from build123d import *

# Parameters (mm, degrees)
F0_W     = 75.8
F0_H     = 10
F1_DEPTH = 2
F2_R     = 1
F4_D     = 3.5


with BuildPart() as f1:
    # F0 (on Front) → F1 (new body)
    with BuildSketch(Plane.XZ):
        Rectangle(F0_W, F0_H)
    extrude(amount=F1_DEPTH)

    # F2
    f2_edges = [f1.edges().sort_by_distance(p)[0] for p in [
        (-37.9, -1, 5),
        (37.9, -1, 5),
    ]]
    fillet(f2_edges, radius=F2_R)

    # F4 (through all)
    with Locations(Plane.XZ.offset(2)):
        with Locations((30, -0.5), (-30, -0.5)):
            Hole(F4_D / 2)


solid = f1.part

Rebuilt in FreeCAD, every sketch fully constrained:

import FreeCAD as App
import Part
import Sketcher

V = App.Vector


def edges_at(feature, points):
    """Names of the edges that pass closest to the given points."""
    edges = feature.Shape.Edges
    near = lambda p: min(range(len(edges)), key=lambda i: edges[i].distToShape(Part.Vertex(*p))[0])
    return sorted({f"Edge{near(p) + 1}" for p in points})

doc = App.newDocument("Part")
body = doc.addObject("PartDesign::Body", "Body")

# Sketch on XZ plane
sketch1 = body.newObject("Sketcher::SketchObject", "Sketch")
sketch1.AttachmentSupport = (doc.getObject("XZ_Plane"), [""])
sketch1.MapMode = "FlatFace"
sketch1.addGeometry([
    Part.LineSegment(V(-38, 5, 0), V(-38, -5, 0)),
    Part.LineSegment(V(-38, -5, 0), V(38, -5, 0)),
    Part.LineSegment(V(38, -5, 0), V(38, 5, 0)),
    Part.LineSegment(V(38, 5, 0), V(-38, 5, 0)),
], False)
sketch1.addConstraint([
    Sketcher.Constraint("Coincident", 0, 2, 1, 1),
    Sketcher.Constraint("Coincident", 1, 2, 2, 1),
    Sketcher.Constraint("Coincident", 2, 2, 3, 1),
    Sketcher.Constraint("Coincident", 3, 2, 0, 1),
    Sketcher.Constraint("Vertical", 0),
    Sketcher.Constraint("Horizontal", 1),
    Sketcher.Constraint("Vertical", 2),
    Sketcher.Constraint("Horizontal", 3),
    Sketcher.Constraint("Symmetric", 0, 2, 2, 2, -1, 1),
    Sketcher.Constraint("DistanceY", 0, 2, 0, 1, 10.0),
    Sketcher.Constraint("DistanceX", 1, 1, 1, 2, 75.8),
])
pad1 = body.newObject("PartDesign::Pad", "Pad")
pad1.Profile = sketch1
pad1.Length = 2
doc.recompute()

fillet = body.newObject("PartDesign::Fillet", "Fillet")
fillet.Base = (pad1, edges_at(pad1, [(-37.9, -1, 5), (37.9, -1, 5)]))
fillet.Radius = 1

# Sketch on XZ plane
sketch2 = body.newObject("Sketcher::SketchObject", "Sketch001")
sketch2.AttachmentSupport = (doc.getObject("XZ_Plane"), [""])
sketch2.MapMode = "FlatFace"
sketch2.AttachmentOffset = App.Placement(V(0, 0, 2), App.Rotation())
sketch2.addGeometry([
    Part.Circle(V(30, -0.5, 0), V(0, 0, 1), 1.8),
    Part.Circle(V(-30, -0.5, 0), V(0, 0, 1), 1.8),
], False)
sketch2.addConstraint([
    Sketcher.Constraint("Equal", 0, 1),
    Sketcher.Constraint("Symmetric", 0, 3, 1, 3, -2),
    Sketcher.Constraint("Diameter", 0, 3.5),
    Sketcher.Constraint("DistanceX", -1, 1, 0, 3, 30.0),
    Sketcher.Constraint("DistanceY", 0, 3, -1, 1, 0.5),
])
doc.recompute()
hole = body.newObject("PartDesign::Hole", "Hole")
hole.Profile = sketch2
hole.ThreadType = "None"
hole.Diameter = 3.5
hole.DepthType = "ThroughAll"

doc.recompute()
